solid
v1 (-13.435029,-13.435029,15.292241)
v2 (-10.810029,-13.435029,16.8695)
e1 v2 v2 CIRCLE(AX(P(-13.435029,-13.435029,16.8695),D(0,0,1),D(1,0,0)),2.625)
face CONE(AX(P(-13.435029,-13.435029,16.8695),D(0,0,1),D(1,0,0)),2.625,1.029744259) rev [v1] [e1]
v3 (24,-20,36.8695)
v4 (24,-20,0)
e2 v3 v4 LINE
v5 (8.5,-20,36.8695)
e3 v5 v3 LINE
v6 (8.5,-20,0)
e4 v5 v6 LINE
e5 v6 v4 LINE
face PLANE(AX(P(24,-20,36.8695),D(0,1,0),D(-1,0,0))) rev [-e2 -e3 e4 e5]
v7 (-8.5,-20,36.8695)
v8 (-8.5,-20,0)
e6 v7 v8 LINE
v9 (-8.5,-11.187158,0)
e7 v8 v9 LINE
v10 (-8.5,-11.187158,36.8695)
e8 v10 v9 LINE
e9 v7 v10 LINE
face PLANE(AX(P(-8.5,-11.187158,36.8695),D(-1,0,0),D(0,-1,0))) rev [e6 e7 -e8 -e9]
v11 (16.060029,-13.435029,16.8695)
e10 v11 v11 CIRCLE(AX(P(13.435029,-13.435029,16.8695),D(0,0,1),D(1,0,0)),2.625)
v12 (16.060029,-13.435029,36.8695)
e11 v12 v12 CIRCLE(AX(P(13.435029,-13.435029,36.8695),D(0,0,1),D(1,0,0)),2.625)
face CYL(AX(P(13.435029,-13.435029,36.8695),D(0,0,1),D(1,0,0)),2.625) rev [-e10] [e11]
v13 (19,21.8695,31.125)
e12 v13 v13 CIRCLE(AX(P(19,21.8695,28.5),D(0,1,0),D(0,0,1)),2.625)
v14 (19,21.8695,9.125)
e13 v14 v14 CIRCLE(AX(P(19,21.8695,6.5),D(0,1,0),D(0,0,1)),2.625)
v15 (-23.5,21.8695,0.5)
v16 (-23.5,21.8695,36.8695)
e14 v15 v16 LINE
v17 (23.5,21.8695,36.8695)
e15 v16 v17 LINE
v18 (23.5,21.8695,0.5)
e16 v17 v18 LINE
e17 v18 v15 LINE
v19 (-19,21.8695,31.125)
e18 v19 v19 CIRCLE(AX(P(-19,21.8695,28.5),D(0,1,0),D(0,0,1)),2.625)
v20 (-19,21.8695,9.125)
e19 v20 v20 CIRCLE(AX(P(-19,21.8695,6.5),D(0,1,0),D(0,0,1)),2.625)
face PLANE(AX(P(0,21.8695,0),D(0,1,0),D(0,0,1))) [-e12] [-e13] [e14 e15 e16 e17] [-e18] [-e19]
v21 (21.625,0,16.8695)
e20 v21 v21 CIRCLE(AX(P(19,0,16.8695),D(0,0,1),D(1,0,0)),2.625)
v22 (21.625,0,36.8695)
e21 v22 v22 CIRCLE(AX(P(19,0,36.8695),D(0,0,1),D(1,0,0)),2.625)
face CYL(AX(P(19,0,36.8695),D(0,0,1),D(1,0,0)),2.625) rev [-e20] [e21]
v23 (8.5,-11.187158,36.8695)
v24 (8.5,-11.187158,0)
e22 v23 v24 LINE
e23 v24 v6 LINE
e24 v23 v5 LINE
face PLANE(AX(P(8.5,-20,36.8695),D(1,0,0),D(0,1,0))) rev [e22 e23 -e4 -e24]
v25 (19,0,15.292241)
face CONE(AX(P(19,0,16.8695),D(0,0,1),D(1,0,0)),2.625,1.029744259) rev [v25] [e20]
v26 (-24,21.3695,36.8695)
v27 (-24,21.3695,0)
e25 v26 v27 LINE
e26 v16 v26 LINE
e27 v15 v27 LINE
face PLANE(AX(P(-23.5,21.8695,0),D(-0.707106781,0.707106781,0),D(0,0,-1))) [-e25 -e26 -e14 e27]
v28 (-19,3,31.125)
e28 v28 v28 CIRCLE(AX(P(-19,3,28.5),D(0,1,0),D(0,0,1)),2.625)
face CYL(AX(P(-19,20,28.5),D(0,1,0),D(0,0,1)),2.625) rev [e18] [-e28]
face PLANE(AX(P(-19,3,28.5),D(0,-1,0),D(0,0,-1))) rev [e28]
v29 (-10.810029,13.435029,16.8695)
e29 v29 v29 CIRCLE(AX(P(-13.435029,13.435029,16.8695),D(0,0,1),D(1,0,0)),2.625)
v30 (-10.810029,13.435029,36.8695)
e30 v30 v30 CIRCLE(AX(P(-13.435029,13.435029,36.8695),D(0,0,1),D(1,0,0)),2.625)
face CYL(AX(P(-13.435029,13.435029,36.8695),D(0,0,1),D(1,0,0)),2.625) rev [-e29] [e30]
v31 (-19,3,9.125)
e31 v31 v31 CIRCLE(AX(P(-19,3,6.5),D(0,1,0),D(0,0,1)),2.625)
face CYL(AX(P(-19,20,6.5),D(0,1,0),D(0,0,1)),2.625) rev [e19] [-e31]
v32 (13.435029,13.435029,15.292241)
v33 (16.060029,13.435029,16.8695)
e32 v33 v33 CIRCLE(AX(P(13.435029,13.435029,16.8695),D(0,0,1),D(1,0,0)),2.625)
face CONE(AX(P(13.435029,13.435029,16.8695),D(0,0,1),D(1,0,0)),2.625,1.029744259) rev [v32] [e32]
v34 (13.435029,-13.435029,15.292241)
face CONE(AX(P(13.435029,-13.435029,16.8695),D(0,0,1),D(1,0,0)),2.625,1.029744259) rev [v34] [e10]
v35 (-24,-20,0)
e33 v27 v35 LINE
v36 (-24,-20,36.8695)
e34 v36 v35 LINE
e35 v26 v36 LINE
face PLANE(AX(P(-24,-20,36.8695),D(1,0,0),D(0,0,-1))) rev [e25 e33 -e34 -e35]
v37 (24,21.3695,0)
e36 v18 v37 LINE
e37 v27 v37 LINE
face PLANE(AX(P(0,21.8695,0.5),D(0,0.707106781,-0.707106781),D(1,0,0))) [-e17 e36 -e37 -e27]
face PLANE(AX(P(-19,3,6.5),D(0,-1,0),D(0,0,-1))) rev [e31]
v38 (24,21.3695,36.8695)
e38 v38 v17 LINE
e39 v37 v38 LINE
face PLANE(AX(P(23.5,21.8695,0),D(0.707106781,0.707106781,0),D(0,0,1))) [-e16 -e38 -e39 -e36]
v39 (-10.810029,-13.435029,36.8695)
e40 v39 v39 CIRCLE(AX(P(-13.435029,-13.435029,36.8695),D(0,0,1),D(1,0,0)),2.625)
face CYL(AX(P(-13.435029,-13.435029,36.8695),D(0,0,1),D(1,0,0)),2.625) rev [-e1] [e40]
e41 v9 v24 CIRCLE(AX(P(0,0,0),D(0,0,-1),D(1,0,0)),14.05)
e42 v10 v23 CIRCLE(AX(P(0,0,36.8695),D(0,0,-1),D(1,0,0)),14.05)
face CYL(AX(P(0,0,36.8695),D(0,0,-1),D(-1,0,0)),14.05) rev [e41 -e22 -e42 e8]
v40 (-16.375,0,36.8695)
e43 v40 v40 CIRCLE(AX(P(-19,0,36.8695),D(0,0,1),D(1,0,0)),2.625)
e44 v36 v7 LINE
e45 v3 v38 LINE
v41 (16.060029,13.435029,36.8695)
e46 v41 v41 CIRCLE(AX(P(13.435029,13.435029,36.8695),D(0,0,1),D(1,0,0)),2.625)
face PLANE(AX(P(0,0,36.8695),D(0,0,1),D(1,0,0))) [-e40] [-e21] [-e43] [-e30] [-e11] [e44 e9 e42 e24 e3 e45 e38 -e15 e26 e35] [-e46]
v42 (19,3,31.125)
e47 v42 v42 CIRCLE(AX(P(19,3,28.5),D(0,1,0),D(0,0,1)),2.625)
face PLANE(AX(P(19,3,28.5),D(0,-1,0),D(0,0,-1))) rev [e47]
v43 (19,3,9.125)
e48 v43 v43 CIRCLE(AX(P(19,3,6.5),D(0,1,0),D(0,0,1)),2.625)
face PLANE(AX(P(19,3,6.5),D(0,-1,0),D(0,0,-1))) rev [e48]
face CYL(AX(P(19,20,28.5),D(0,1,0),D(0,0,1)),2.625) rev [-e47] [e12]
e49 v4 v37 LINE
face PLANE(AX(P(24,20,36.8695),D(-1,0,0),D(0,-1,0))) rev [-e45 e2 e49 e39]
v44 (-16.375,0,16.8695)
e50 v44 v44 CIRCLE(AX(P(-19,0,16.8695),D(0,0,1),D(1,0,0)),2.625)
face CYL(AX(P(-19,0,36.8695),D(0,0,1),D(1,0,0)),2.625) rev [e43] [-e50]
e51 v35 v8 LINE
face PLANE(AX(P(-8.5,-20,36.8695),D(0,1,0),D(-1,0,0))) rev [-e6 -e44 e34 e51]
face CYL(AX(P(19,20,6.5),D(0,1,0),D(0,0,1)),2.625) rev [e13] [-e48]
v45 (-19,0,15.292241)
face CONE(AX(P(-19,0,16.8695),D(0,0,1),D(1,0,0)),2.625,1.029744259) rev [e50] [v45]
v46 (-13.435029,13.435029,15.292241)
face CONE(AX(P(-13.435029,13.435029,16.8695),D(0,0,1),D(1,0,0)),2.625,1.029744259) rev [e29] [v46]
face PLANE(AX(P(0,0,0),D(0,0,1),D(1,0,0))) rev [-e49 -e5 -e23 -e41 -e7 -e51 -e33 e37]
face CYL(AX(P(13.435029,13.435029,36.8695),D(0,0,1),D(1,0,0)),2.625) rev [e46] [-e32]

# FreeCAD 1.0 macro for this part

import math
import FreeCAD as App
import Part
import Sketcher
from FreeCAD import Vector
Q = App.Units.Quantity


def edges_at(feature, points):
    """Names of the edges that pass closest to the given points."""
    edges = feature.Shape.Edges
    near = lambda p: min(range(len(edges)), key=lambda i: edges[i].distToShape(Part.Vertex(*p))[0])
    return sorted({f"Edge{near(p) + 1}" for p in points})


def add_polygon(sketch, points):
    """Adds a closed chain of lines whose ends are joined by coincident constraints."""
    first, n = sketch.GeometryCount, len(points)
    for a, b in zip(points, points[1:] + points[:1]):
        sketch.addGeometry(Part.LineSegment(App.Vector(*a, 0), App.Vector(*b, 0)), False)
    for i in range(n):
        sketch.addConstraint(Sketcher.Constraint("Coincident", first + i, 2, first + (i + 1) % n, 1))

doc = App.newDocument("Part")
body = doc.addObject("PartDesign::Body", "Body")

sketch1 = body.newObject("Sketcher::SketchObject", "Sketch")
sketch1.AttachmentSupport = (doc.getObject("XY_Plane"), [""])
sketch1.MapMode = "FlatFace"
sketch1.addGeometry(Part.LineSegment(Vector(24, 20, 0), Vector(-24, 20, 0)), False)
sketch1.addGeometry(Part.LineSegment(Vector(-24, 20, 0), Vector(-24, -20, 0)), False)
sketch1.addGeometry(Part.LineSegment(Vector(-24, -20, 0), Vector(-8, -20, 0)), False)
sketch1.addGeometry(Part.LineSegment(Vector(-8, -20, 0), Vector(-8, -11, 0)), False)
sketch1.addGeometry(Part.ArcOfCircle(Part.Circle(Vector(0, 0, 0), Vector(0, 0, 1), 14), math.radians(-53), math.radians(233)), False)
sketch1.addGeometry(Part.LineSegment(Vector(8, -11, 0), Vector(8, -20, 0)), False)
sketch1.addGeometry(Part.LineSegment(Vector(8, -20, 0), Vector(24, -20, 0)), False)
sketch1.addGeometry(Part.LineSegment(Vector(24, -20, 0), Vector(24, 20, 0)), False)
sketch1.addConstraint(Sketcher.Constraint("Coincident", 0, 2, 1, 1))
sketch1.addConstraint(Sketcher.Constraint("Coincident", 1, 2, 2, 1))
sketch1.addConstraint(Sketcher.Constraint("Coincident", 2, 2, 3, 1))
sketch1.addConstraint(Sketcher.Constraint("Coincident", 3, 2, 4, 2))
sketch1.addConstraint(Sketcher.Constraint("Coincident", 4, 1, 5, 1))
sketch1.addConstraint(Sketcher.Constraint("Coincident", 5, 2, 6, 1))
sketch1.addConstraint(Sketcher.Constraint("Coincident", 6, 2, 7, 1))
sketch1.addConstraint(Sketcher.Constraint("Coincident", 7, 2, 0, 1))
sketch1.addConstraint(Sketcher.Constraint("Horizontal", 0))
sketch1.addConstraint(Sketcher.Constraint("Vertical", 1))
sketch1.addConstraint(Sketcher.Constraint("Horizontal", 2))
sketch1.addConstraint(Sketcher.Constraint("Vertical", 3))
sketch1.addConstraint(Sketcher.Constraint("Vertical", 5))
sketch1.addConstraint(Sketcher.Constraint("Horizontal", 6))
sketch1.addConstraint(Sketcher.Constraint("Vertical", 7))
sketch1.addConstraint(Sketcher.Constraint("Coincident", 4, 3, -1, 1))
sketch1.addConstraint(Sketcher.Constraint("Symmetric", 0, 2, 6, 2, -1, 1))
sketch1.addConstraint(Sketcher.Constraint("Symmetric", 2, 2, 5, 2, -2))
sketch1.addConstraint(Sketcher.Constraint("DistanceX", 0, 2, 0, 1, Q("48 mm")))
sketch1.addConstraint(Sketcher.Constraint("DistanceY", 1, 2, 1, 1, Q("40 mm")))
sketch1.addConstraint(Sketcher.Constraint("Radius", 4, Q("14.05 mm")))
sketch1.addConstraint(Sketcher.Constraint("DistanceX", 2, 1, 2, 2, Q("15.5 mm")))
pad1 = body.newObject("PartDesign::Pad", "Pad")
pad1.Profile = sketch1
pad1.Length = 36.8695

sketch2 = body.newObject("Sketcher::SketchObject", "Sketch001")
sketch2.AttachmentSupport = (doc.getObject("XY_Plane"), [""])
sketch2.MapMode = "FlatFace"
sketch2.AttachmentOffset = App.Placement(Vector(0, 0, 36.8695), App.Rotation())
sketch2.addGeometry(Part.Circle(Vector(-19, 0, 0), Vector(0, 0, 1), 2.6), False)
sketch2.addGeometry(Part.Circle(Vector(-13.4, -13.4, 0), Vector(0, 0, 1), 2.6), False)
sketch2.addGeometry(Part.Circle(Vector(-13.4, 13.4, 0), Vector(0, 0, 1), 2.6), False)
sketch2.addGeometry(Part.Circle(Vector(13.4, 13.4, 0), Vector(0, 0, 1), 2.6), False)
sketch2.addGeometry(Part.Circle(Vector(19, 0, 0), Vector(0, 0, 1), 2.6), False)
sketch2.addGeometry(Part.Circle(Vector(13.4, -13.4, 0), Vector(0, 0, 1), 2.6), False)
sketch2.addConstraint(Sketcher.Constraint("Equal", 0, 1))
sketch2.addConstraint(Sketcher.Constraint("Equal", 1, 2))
sketch2.addConstraint(Sketcher.Constraint("Equal", 2, 3))
sketch2.addConstraint(Sketcher.Constraint("Equal", 3, 4))
sketch2.addConstraint(Sketcher.Constraint("Equal", 4, 5))
sketch2.addConstraint(Sketcher.Constraint("Symmetric", 1, 3, 3, 3, -1, 1))
sketch2.addConstraint(Sketcher.Constraint("Symmetric", 0, 3, 4, 3, -1, 1))
sketch2.addConstraint(Sketcher.Constraint("Symmetric", 2, 3, 5, 3, -1, 1))
sketch2.addConstraint(Sketcher.Constraint("Symmetric", 2, 3, 3, 3, -2))
sketch2.addConstraint(Sketcher.Constraint("PointOnObject", 0, 3, -1))
sketch2.addConstraint(Sketcher.Constraint("Diameter", 0, Q("5.25 mm")))
sketch2.addConstraint(Sketcher.Constraint("DistanceX", 0, 3, -1, 1, Q("19 mm")))
sketch2.addConstraint(Sketcher.Constraint("DistanceX", 1, 3, -1, 1, Q("13.435029 mm")))
sketch2.addConstraint(Sketcher.Constraint("DistanceY", 1, 3, -1, 1, Q("13.435029 mm")))
doc.recompute()
hole = body.newObject("PartDesign::Hole", "Hole")
hole.Profile = sketch2
hole.ThreadType = "None"
hole.Diameter = 5.25
hole.DepthType = "Dimension"
hole.Depth = 20
hole.DrillPoint = "Angled"
hole.DrillPointAngle = 118

sketch3 = body.newObject("Sketcher::SketchObject", "Sketch002")
sketch3.AttachmentSupport = (doc.getObject("XZ_Plane"), [""])
sketch3.MapMode = "FlatFace"
sketch3.AttachmentOffset = App.Placement(Vector(0, 0, -20), App.Rotation())
sketch3.addGeometry(Part.Circle(Vector(-19, 6.5, 0), Vector(0, 0, 1), 2.6), False)
sketch3.addGeometry(Part.Circle(Vector(19, 6.5, 0), Vector(0, 0, 1), 2.6), False)
sketch3.addGeometry(Part.Circle(Vector(-19, 28.5, 0), Vector(0, 0, 1), 2.6), False)
sketch3.addGeometry(Part.Circle(Vector(19, 28.5, 0), Vector(0, 0, 1), 2.6), False)
sketch3.addConstraint(Sketcher.Constraint("Equal", 0, 1))
sketch3.addConstraint(Sketcher.Constraint("Equal", 1, 2))
sketch3.addConstraint(Sketcher.Constraint("Equal", 2, 3))
sketch3.addConstraint(Sketcher.Constraint("Symmetric", 0, 3, 1, 3, -2))
sketch3.addConstraint(Sketcher.Constraint("Symmetric", 2, 3, 3, 3, -2))
sketch3.addConstraint(Sketcher.Constraint("Vertical", 0, 3, 2, 3))
sketch3.addConstraint(Sketcher.Constraint("Diameter", 0, Q("5.25 mm")))
sketch3.addConstraint(Sketcher.Constraint("DistanceX", 0, 3, -1, 1, Q("19 mm")))
sketch3.addConstraint(Sketcher.Constraint("DistanceY", 0, 3, 2, 3, Q("22 mm")))
sketch3.addConstraint(Sketcher.Constraint("DistanceY", -1, 1, 0, 3, Q("6.5 mm")))
doc.recompute()
hole2 = body.newObject("PartDesign::Hole", "Hole001")
hole2.Profile = sketch3
hole2.ThreadType = "None"
hole2.Diameter = 5.25
hole2.DepthType = "Dimension"
hole2.Depth = 17
hole2.DrillPoint = "Flat"
hole2.Reversed = True

sketch4 = body.newObject("Sketcher::SketchObject", "Sketch003")
sketch4.AttachmentSupport = (doc.getObject("XZ_Plane"), [""])
sketch4.MapMode = "FlatFace"
sketch4.AttachmentOffset = App.Placement(Vector(0, 0, -20), App.Rotation())
add_polygon(sketch4, [(24, 36.9), (24, 0), (-24, 0), (-24, 36.9)])
sketch4.addGeometry(Part.Circle(Vector(19, 6.5, 0), Vector(0, 0, 1), 2.6), False)
sketch4.addGeometry(Part.Circle(Vector(-19, 6.5, 0), Vector(0, 0, 1), 2.6), False)
sketch4.addGeometry(Part.Circle(Vector(19, 28.5, 0), Vector(0, 0, 1), 2.6), False)
sketch4.addGeometry(Part.Circle(Vector(-19, 28.5, 0), Vector(0, 0, 1), 2.6), False)
sketch4.addConstraint(Sketcher.Constraint("Vertical", 0))
sketch4.addConstraint(Sketcher.Constraint("Horizontal", 1))
sketch4.addConstraint(Sketcher.Constraint("Vertical", 2))
sketch4.addConstraint(Sketcher.Constraint("Horizontal", 3))
sketch4.addConstraint(Sketcher.Constraint("Equal", 4, 5))
sketch4.addConstraint(Sketcher.Constraint("Equal", 5, 6))
sketch4.addConstraint(Sketcher.Constraint("Equal", 6, 7))
sketch4.addConstraint(Sketcher.Constraint("Symmetric", 0, 2, 1, 2, -1, 1))
sketch4.addConstraint(Sketcher.Constraint("Symmetric", 4, 3, 5, 3, -2))
sketch4.addConstraint(Sketcher.Constraint("Symmetric", 6, 3, 7, 3, -2))
sketch4.addConstraint(Sketcher.Constraint("Vertical", 4, 3, 6, 3))
sketch4.addConstraint(Sketcher.Constraint("Diameter", 4, Q("5.25 mm")))
sketch4.addConstraint(Sketcher.Constraint("DistanceX", 1, 2, 1, 1, Q("48 mm")))
sketch4.addConstraint(Sketcher.Constraint("DistanceX", -1, 1, 4, 3, Q("19 mm")))
sketch4.addConstraint(Sketcher.Constraint("DistanceY", 4, 3, 6, 3, Q("22 mm")))
sketch4.addConstraint(Sketcher.Constraint("DistanceY", -1, 1, 4, 3, Q("6.5 mm")))
sketch4.addConstraint(Sketcher.Constraint("DistanceY", 0, 2, 0, 1, Q("36.8695 mm")))
pad2 = body.newObject("PartDesign::Pad", "Pad001")
pad2.Profile = sketch4
pad2.Length = 1.8695
pad2.Reversed = True
doc.recompute()

chamfer = body.newObject("PartDesign::Chamfer", "Chamfer")
chamfer.Base = (pad2, edges_at(pad2, [(24, 21.869, 18.435), (0, 21.869, 0), (-24, 21.869, 18.435)]))
chamfer.Size = 0.5

doc.recompute()
